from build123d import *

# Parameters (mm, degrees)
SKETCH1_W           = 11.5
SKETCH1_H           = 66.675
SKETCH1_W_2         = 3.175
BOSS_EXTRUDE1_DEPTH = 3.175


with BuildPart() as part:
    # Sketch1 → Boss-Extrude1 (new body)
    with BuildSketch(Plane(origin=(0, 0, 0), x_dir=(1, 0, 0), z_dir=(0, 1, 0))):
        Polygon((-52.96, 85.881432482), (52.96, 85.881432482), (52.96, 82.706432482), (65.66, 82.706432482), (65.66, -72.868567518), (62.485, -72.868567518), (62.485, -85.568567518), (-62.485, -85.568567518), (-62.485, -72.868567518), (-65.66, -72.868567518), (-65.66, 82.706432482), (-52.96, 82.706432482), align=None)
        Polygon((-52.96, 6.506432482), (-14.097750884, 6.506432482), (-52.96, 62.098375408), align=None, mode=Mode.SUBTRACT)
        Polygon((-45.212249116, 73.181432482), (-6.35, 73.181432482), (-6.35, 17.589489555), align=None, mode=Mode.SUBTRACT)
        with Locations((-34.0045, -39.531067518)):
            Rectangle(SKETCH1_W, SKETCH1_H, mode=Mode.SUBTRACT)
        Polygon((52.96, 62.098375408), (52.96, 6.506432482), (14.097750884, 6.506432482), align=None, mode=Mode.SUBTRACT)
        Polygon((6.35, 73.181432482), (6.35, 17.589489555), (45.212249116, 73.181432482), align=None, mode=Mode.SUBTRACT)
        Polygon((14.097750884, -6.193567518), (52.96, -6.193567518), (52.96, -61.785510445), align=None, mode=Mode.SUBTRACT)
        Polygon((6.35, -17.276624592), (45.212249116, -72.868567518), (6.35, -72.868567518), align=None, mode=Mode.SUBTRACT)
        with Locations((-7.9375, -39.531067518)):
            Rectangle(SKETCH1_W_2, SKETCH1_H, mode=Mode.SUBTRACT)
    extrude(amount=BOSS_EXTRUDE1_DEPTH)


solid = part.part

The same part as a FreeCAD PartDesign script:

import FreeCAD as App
import Part
import Sketcher
Q = App.Units.Quantity

doc = App.newDocument("Part")
body = doc.addObject("PartDesign::Body", "Body")

sketch1 = body.newObject("Sketcher::SketchObject", "Sketch")
sketch1.AttachmentSupport = (doc.getObject("XZ_Plane"), [""])
sketch1.MapMode = "FlatFace"
sketch1.addGeometry(Part.LineSegment(App.Vector(53, -85.9, 0), App.Vector(-53, -85.9, 0)), False)
sketch1.addGeometry(Part.LineSegment(App.Vector(-53, -85.9, 0), App.Vector(-53, -82.7, 0)), False)
sketch1.addGeometry(Part.LineSegment(App.Vector(-53, -82.7, 0), App.Vector(-65.7, -82.7, 0)), False)
sketch1.addGeometry(Part.LineSegment(App.Vector(-65.7, -82.7, 0), App.Vector(-65.7, 72.9, 0)), False)
sketch1.addGeometry(Part.LineSegment(App.Vector(-65.7, 72.9, 0), App.Vector(-62.5, 72.9, 0)), False)
sketch1.addGeometry(Part.LineSegment(App.Vector(-62.5, 72.9, 0), App.Vector(-62.5, 85.6, 0)), False)
sketch1.addGeometry(Part.LineSegment(App.Vector(-62.5, 85.6, 0), App.Vector(62.5, 85.6, 0)), False)
sketch1.addGeometry(Part.LineSegment(App.Vector(62.5, 85.6, 0), App.Vector(62.5, 72.9, 0)), False)
sketch1.addGeometry(Part.LineSegment(App.Vector(62.5, 72.9, 0), App.Vector(65.7, 72.9, 0)), False)
sketch1.addGeometry(Part.LineSegment(App.Vector(65.7, 72.9, 0), App.Vector(65.7, -82.7, 0)), False)
sketch1.addGeometry(Part.LineSegment(App.Vector(65.7, -82.7, 0), App.Vector(53, -82.7, 0)), False)
sketch1.addGeometry(Part.LineSegment(App.Vector(53, -82.7, 0), App.Vector(53, -85.9, 0)), False)
sketch1.addGeometry(Part.LineSegment(App.Vector(6.3, 17.3, 0), App.Vector(45.2, 72.9, 0)), False)
sketch1.addGeometry(Part.LineSegment(App.Vector(45.2, 72.9, 0), App.Vector(6.3, 72.9, 0)), False)
sketch1.addGeometry(Part.LineSegment(App.Vector(6.3, 72.9, 0), App.Vector(6.3, 17.3, 0)), False)
sketch1.addGeometry(Part.LineSegment(App.Vector(14.1, 6.2, 0), App.Vector(53, 6.2, 0)), False)
sketch1.addGeometry(Part.LineSegment(App.Vector(53, 6.2, 0), App.Vector(53, 61.8, 0)), False)
sketch1.addGeometry(Part.LineSegment(App.Vector(53, 61.8, 0), App.Vector(14.1, 6.2, 0)), False)
sketch1.addGeometry(Part.LineSegment(App.Vector(-9.5, 72.9, 0), App.Vector(-9.5, 6.2, 0)), False)
sketch1.addGeometry(Part.LineSegment(App.Vector(-9.5, 6.2, 0), App.Vector(-6.3, 6.2, 0)), False)
sketch1.addGeometry(Part.LineSegment(App.Vector(-6.3, 6.2, 0), App.Vector(-6.3, 72.9, 0)), False)
sketch1.addGeometry(Part.LineSegment(App.Vector(-6.3, 72.9, 0), App.Vector(-9.5, 72.9, 0)), False)
sketch1.addGeometry(Part.LineSegment(App.Vector(-39.8, 72.9, 0), App.Vector(-39.8, 6.2, 0)), False)
sketch1.addGeometry(Part.LineSegment(App.Vector(-39.8, 6.2, 0), App.Vector(-28.3, 6.2, 0)), False)
sketch1.addGeometry(Part.LineSegment(App.Vector(-28.3, 6.2, 0), App.Vector(-28.3, 72.9, 0)), False)
sketch1.addGeometry(Part.LineSegment(App.Vector(-28.3, 72.9, 0), App.Vector(-39.8, 72.9, 0)), False)
sketch1.addGeometry(Part.LineSegment(App.Vector(53, -62.1, 0), App.Vector(53, -6.5, 0)), False)
sketch1.addGeometry(Part.LineSegment(App.Vector(53, -6.5, 0), App.Vector(14.1, -6.5, 0)), False)
sketch1.addGeometry(Part.LineSegment(App.Vector(14.1, -6.5, 0), App.Vector(53, -62.1, 0)), False)
sketch1.addGeometry(Part.LineSegment(App.Vector(6.3, -73.2, 0), App.Vector(45.2, -73.2, 0)), False)
sketch1.addGeometry(Part.LineSegment(App.Vector(45.2, -73.2, 0), App.Vector(6.3, -17.6, 0)), False)
sketch1.addGeometry(Part.LineSegment(App.Vector(6.3, -17.6, 0), App.Vector(6.3, -73.2, 0)), False)
sketch1.addGeometry(Part.LineSegment(App.Vector(-53, -6.5, 0), App.Vector(-53, -62.1, 0)), False)
sketch1.addGeometry(Part.LineSegment(App.Vector(-53, -62.1, 0), App.Vector(-14.1, -6.5, 0)), False)
sketch1.addGeometry(Part.LineSegment(App.Vector(-14.1, -6.5, 0), App.Vector(-53, -6.5, 0)), False)
sketch1.addGeometry(Part.LineSegment(App.Vector(-45.2, -73.2, 0), App.Vector(-6.3, -73.2, 0)), False)
sketch1.addGeometry(Part.LineSegment(App.Vector(-6.3, -73.2, 0), App.Vector(-6.3, -17.6, 0)), False)
sketch1.addGeometry(Part.LineSegment(App.Vector(-6.3, -17.6, 0), App.Vector(-45.2, -73.2, 0)), False)
sketch1.addConstraint(Sketcher.Constraint("Coincident", 0, 2, 1, 1))
sketch1.addConstraint(Sketcher.Constraint("Coincident", 1, 2, 2, 1))
sketch1.addConstraint(Sketcher.Constraint("Coincident", 2, 2, 3, 1))
sketch1.addConstraint(Sketcher.Constraint("Coincident", 3, 2, 4, 1))
sketch1.addConstraint(Sketcher.Constraint("Coincident", 4, 2, 5, 1))
sketch1.addConstraint(Sketcher.Constraint("Coincident", 5, 2, 6, 1))
sketch1.addConstraint(Sketcher.Constraint("Coincident", 6, 2, 7, 1))
sketch1.addConstraint(Sketcher.Constraint("Coincident", 7, 2, 8, 1))
sketch1.addConstraint(Sketcher.Constraint("Coincident", 8, 2, 9, 1))
sketch1.addConstraint(Sketcher.Constraint("Coincident", 9, 2, 10, 1))
sketch1.addConstraint(Sketcher.Constraint("Coincident", 10, 2, 11, 1))
sketch1.addConstraint(Sketcher.Constraint("Coincident", 11, 2, 0, 1))
sketch1.addConstraint(Sketcher.Constraint("Coincident", 12, 2, 13, 1))
sketch1.addConstraint(Sketcher.Constraint("Coincident", 13, 2, 14, 1))
sketch1.addConstraint(Sketcher.Constraint("Coincident", 14, 2, 12, 1))
sketch1.addConstraint(Sketcher.Constraint("Coincident", 15, 2, 16, 1))
sketch1.addConstraint(Sketcher.Constraint("Coincident", 16, 2, 17, 1))
sketch1.addConstraint(Sketcher.Constraint("Coincident", 17, 2, 15, 1))
sketch1.addConstraint(Sketcher.Constraint("Coincident", 18, 2, 19, 1))
sketch1.addConstraint(Sketcher.Constraint("Coincident", 19, 2, 20, 1))
sketch1.addConstraint(Sketcher.Constraint("Coincident", 20, 2, 21, 1))
sketch1.addConstraint(Sketcher.Constraint("Coincident", 21, 2, 18, 1))
sketch1.addConstraint(Sketcher.Constraint("Coincident", 22, 2, 23, 1))
sketch1.addConstraint(Sketcher.Constraint("Coincident", 23, 2, 24, 1))
sketch1.addConstraint(Sketcher.Constraint("Coincident", 24, 2, 25, 1))
sketch1.addConstraint(Sketcher.Constraint("Coincident", 25, 2, 22, 1))
sketch1.addConstraint(Sketcher.Constraint("Coincident", 26, 2, 27, 1))
sketch1.addConstraint(Sketcher.Constraint("Coincident", 27, 2, 28, 1))
sketch1.addConstraint(Sketcher.Constraint("Coincident", 28, 2, 26, 1))
sketch1.addConstraint(Sketcher.Constraint("Coincident", 29, 2, 30, 1))
sketch1.addConstraint(Sketcher.Constraint("Coincident", 30, 2, 31, 1))
sketch1.addConstraint(Sketcher.Constraint("Coincident", 31, 2, 29, 1))
sketch1.addConstraint(Sketcher.Constraint("Coincident", 32, 2, 33, 1))
sketch1.addConstraint(Sketcher.Constraint("Coincident", 33, 2, 34, 1))
sketch1.addConstraint(Sketcher.Constraint("Coincident", 34, 2, 32, 1))
sketch1.addConstraint(Sketcher.Constraint("Coincident", 35, 2, 36, 1))
sketch1.addConstraint(Sketcher.Constraint("Coincident", 36, 2, 37, 1))
sketch1.addConstraint(Sketcher.Constraint("Coincident", 37, 2, 35, 1))
sketch1.addConstraint(Sketcher.Constraint("Horizontal", 0))
sketch1.addConstraint(Sketcher.Constraint("Vertical", 1))
sketch1.addConstraint(Sketcher.Constraint("Horizontal", 2))
sketch1.addConstraint(Sketcher.Constraint("Vertical", 3))
sketch1.addConstraint(Sketcher.Constraint("Horizontal", 4))
sketch1.addConstraint(Sketcher.Constraint("Vertical", 5))
sketch1.addConstraint(Sketcher.Constraint("Horizontal", 6))
sketch1.addConstraint(Sketcher.Constraint("Vertical", 7))
sketch1.addConstraint(Sketcher.Constraint("Horizontal", 8))
sketch1.addConstraint(Sketcher.Constraint("Vertical", 9))
sketch1.addConstraint(Sketcher.Constraint("Horizontal", 10))
sketch1.addConstraint(Sketcher.Constraint("Vertical", 11))
sketch1.addConstraint(Sketcher.Constraint("Horizontal", 13))
sketch1.addConstraint(Sketcher.Constraint("Vertical", 14))
sketch1.addConstraint(Sketcher.Constraint("Horizontal", 15))
sketch1.addConstraint(Sketcher.Constraint("Vertical", 16))
sketch1.addConstraint(Sketcher.Constraint("Vertical", 18))
sketch1.addConstraint(Sketcher.Constraint("Horizontal", 19))
sketch1.addConstraint(Sketcher.Constraint("Vertical", 20))
sketch1.addConstraint(Sketcher.Constraint("Horizontal", 21))
sketch1.addConstraint(Sketcher.Constraint("Vertical", 22))
sketch1.addConstraint(Sketcher.Constraint("Horizontal", 23))
sketch1.addConstraint(Sketcher.Constraint("Vertical", 24))
sketch1.addConstraint(Sketcher.Constraint("Horizontal", 25))
sketch1.addConstraint(Sketcher.Constraint("Vertical", 26))
sketch1.addConstraint(Sketcher.Constraint("Horizontal", 27))
sketch1.addConstraint(Sketcher.Constraint("Horizontal", 29))
sketch1.addConstraint(Sketcher.Constraint("Vertical", 31))
sketch1.addConstraint(Sketcher.Constraint("Vertical", 32))
sketch1.addConstraint(Sketcher.Constraint("Horizontal", 34))
sketch1.addConstraint(Sketcher.Constraint("Horizontal", 35))
sketch1.addConstraint(Sketcher.Constraint("Vertical", 36))
sketch1.addConstraint(Sketcher.Constraint("Symmetric", 4, 2, 7, 2, -2))
sketch1.addConstraint(Sketcher.Constraint("Symmetric", 2, 2, 9, 2, -2))
sketch1.addConstraint(Sketcher.Constraint("Symmetric", 13, 2, 20, 2, -2))
sketch1.addConstraint(Sketcher.Constraint("Symmetric", 28, 2, 32, 2, -2))
sketch1.addConstraint(Sketcher.Constraint("Symmetric", 27, 2, 33, 2, -2))
sketch1.addConstraint(Sketcher.Constraint("Symmetric", 31, 2, 35, 2, -2))
sketch1.addConstraint(Sketcher.Constraint("Parallel", 12, 17))
sketch1.addConstraint(Sketcher.Constraint("Parallel", 28, 30))
sketch1.addConstraint(Sketcher.Constraint("Parallel", 17, 33))
sketch1.addConstraint(Sketcher.Constraint("Parallel", 33, 37))
sketch1.addConstraint(Sketcher.Constraint("Horizontal", 8, 2, 12, 2))
sketch1.addConstraint(Sketcher.Constraint("Horizontal", 17, 2, 18, 2))
sketch1.addConstraint(Sketcher.Constraint("Horizontal", 19, 2, 22, 2))
sketch1.addConstraint(Sketcher.Constraint("Horizontal", 21, 2, 24, 2))
sketch1.addConstraint(Sketcher.Constraint("Horizontal", 30, 2, 36, 2))
sketch1.addConstraint(Sketcher.Constraint("Vertical", 11, 2, 15, 2))
sketch1.addConstraint(Sketcher.Constraint("Vertical", 16, 2, 26, 2))
sketch1.addConstraint(Sketcher.Constraint("Vertical", 17, 2, 27, 2))
sketch1.addConstraint(Sketcher.Constraint("Vertical", 12, 2, 29, 2))
sketch1.addConstraint(Sketcher.Constraint("Vertical", 14, 2, 30, 2))
sketch1.addConstraint(Sketcher.Constraint("Vertical", 1, 2, 32, 2))
sketch1.addConstraint(Sketcher.Constraint("Equal", 13, 15))
sketch1.addConstraint(Sketcher.Constraint("Equal", 8, 19))
sketch1.addConstraint(Sketcher.Constraint("Equal", 21, 1))
sketch1.addConstraint(Sketcher.Constraint("Equal", 10, 5))
sketch1.addConstraint(Sketcher.Constraint("DistanceX", 2, 2, 2, 1, Q("0.5 in")))
sketch1.addConstraint(Sketcher.Constraint("DistanceX", 19, 2, 14, 2, Q("0.5 in")))
sketch1.addConstraint(Sketcher.Constraint("DistanceY", 26, 2, 15, 2, Q("0.5 in")))
sketch1.addConstraint(Sketcher.Constraint("DistanceY", 11, 2, 29, 2, Q("0.5 in")))
sketch1.addConstraint(Sketcher.Constraint("DistanceX", 4, 1, 4, 2, Q("0.125 in")))
sketch1.addConstraint(Sketcher.Constraint("DistanceY", 3, 1, 3, 2, Q("6.125 in")))
sketch1.addConstraint(Sketcher.Constraint("DistanceY", 18, 2, 18, 1, Q("2.625 in")))
sketch1.addConstraint(Sketcher.Constraint("DistanceX", 0, 2, 0, 1, 105.92))
sketch1.addConstraint(Sketcher.Constraint("DistanceX", 23, 1, 23, 2, 11.5))
sketch1.addConstraint(Sketcher.Constraint("DistanceX", 13, 2, 13, 1, 38.862249))
sketch1.addConstraint(Sketcher.Constraint("DistanceX", 22, 2, -1, 1, 39.7545))
sketch1.addConstraint(Sketcher.Constraint("DistanceY", 14, 2, 14, 1, 55.591943))
sketch1.addConstraint(Sketcher.Constraint("DistanceY", -1, 1, 16, 2, 61.78551))
pad1 = body.newObject("PartDesign::Pad", "Pad")
pad1.Profile = sketch1
pad1.Length = Q("0.125 in")
pad1.Reversed = True

doc.recompute()
